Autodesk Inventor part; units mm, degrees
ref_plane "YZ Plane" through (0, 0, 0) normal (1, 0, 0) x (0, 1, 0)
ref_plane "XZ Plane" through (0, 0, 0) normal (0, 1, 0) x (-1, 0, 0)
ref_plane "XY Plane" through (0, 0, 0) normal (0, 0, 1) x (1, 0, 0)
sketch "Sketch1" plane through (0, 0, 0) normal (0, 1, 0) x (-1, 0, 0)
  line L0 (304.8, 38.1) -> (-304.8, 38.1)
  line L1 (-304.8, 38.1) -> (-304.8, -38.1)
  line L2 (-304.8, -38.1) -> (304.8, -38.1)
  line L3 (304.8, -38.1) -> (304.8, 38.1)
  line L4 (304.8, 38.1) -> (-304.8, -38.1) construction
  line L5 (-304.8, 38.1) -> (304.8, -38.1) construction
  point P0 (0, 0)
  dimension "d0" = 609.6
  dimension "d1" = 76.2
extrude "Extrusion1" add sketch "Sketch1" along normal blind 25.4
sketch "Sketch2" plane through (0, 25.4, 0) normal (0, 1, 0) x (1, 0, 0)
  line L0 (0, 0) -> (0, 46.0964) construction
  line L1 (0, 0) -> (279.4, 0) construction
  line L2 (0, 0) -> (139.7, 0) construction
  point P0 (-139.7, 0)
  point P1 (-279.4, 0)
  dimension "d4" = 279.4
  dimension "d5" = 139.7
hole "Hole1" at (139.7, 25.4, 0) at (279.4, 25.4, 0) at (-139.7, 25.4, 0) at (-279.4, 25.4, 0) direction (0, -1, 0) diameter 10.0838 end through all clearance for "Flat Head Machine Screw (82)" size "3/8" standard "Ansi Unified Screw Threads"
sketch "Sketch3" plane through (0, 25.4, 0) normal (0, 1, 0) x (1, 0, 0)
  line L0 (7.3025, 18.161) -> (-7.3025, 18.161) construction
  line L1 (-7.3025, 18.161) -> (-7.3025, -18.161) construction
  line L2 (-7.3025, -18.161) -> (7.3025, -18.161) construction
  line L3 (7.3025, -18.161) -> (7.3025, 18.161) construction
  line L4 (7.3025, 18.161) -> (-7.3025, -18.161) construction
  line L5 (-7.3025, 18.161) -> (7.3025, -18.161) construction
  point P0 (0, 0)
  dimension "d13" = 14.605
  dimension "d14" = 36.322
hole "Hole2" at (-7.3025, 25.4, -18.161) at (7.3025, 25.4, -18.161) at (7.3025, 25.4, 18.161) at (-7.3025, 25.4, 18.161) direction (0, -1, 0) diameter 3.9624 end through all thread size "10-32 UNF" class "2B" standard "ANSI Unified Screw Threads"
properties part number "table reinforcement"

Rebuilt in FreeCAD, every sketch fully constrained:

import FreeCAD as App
import Part
import Sketcher

V = App.Vector
Q = App.Units.Quantity


def add_polygon(sketch, points):
    """Adds a closed chain of lines whose ends are joined by coincident constraints."""
    first, n = sketch.GeometryCount, len(points)
    for a, b in zip(points, points[1:] + points[:1]):
        sketch.addGeometry(Part.LineSegment(App.Vector(*a, 0), App.Vector(*b, 0)), False)
    for i in range(n):
        sketch.addConstraint(Sketcher.Constraint("Coincident", first + i, 2, first + (i + 1) % n, 1))

doc = App.newDocument("Part")
body = doc.addObject("PartDesign::Body", "Body")

# Sketch on XZ plane
sketch1 = body.newObject("Sketcher::SketchObject", "Sketch")
sketch1.AttachmentSupport = (doc.getObject("XZ_Plane"), [""])
sketch1.MapMode = "FlatFace"
add_polygon(sketch1, [(-305, -38), (-305, 38), (305, 38), (305, -38)])  # lines 0-3
sketch1.addConstraint([
    Sketcher.Constraint("Vertical", 0),
    Sketcher.Constraint("Horizontal", 1),
    Sketcher.Constraint("Vertical", 2),
    Sketcher.Constraint("Horizontal", 3),
    Sketcher.Constraint("Symmetric", 0, 2, 2, 2, -1, 1),
    Sketcher.Constraint("DistanceX", 1, 1, 1, 2, Q("24 in")),
    Sketcher.Constraint("DistanceY", 0, 1, 0, 2, Q("3 in")),
])
pad1 = body.newObject("PartDesign::Pad", "Pad")
pad1.Profile = sketch1
pad1.Length = Q("1 in")
pad1.Reversed = True

# Sketch on XZ plane
sketch2 = body.newObject("Sketcher::SketchObject", "Sketch001")
sketch2.AttachmentSupport = (doc.getObject("XZ_Plane"), [""])
sketch2.MapMode = "FlatFace"
sketch2.AttachmentOffset = App.Placement(V(0, 0, -1 * 25.4), App.Rotation())
sketch2.addGeometry([
    Part.Circle(V(140, 0, 0), V(0, 0, 1), 5),
    Part.Circle(V(279, 0, 0), V(0, 0, 1), 5),
    Part.Circle(V(-140, 0, 0), V(0, 0, 1), 5),
    Part.Circle(V(-279, 0, 0), V(0, 0, 1), 5),
], False)
sketch2.addConstraint([
    Sketcher.Constraint("Equal", 0, 1),
    Sketcher.Constraint("Equal", 1, 2),
    Sketcher.Constraint("Equal", 2, 3),
    Sketcher.Constraint("Symmetric", 0, 3, 2, 3, -1, 1),
    Sketcher.Constraint("Symmetric", 1, 3, 3, 3, -1, 1),
    Sketcher.Constraint("PointOnObject", 0, 3, -1),
    Sketcher.Constraint("PointOnObject", 1, 3, -1),
    Sketcher.Constraint("Diameter", 0, Q("0.397 in")),
    Sketcher.Constraint("DistanceX", -1, 1, 1, 3, Q("11 in")),
    Sketcher.Constraint("DistanceX", 2, 3, 0, 3, Q("11 in")),
])
doc.recompute()
hole = body.newObject("PartDesign::Hole", "Hole")
hole.Profile = sketch2
hole.ThreadType = "None"
hole.Diameter = Q("0.397 in")
hole.DepthType = "ThroughAll"
hole.Reversed = True

# Sketch on XZ plane
sketch3 = body.newObject("Sketcher::SketchObject", "Sketch002")
sketch3.AttachmentSupport = (doc.getObject("XZ_Plane"), [""])
sketch3.MapMode = "FlatFace"
sketch3.AttachmentOffset = App.Placement(V(0, 0, -1 * 25.4), App.Rotation())
sketch3.addGeometry([
    Part.Circle(V(-7.3, -18.2, 0), V(0, 0, 1), 2),
    Part.Circle(V(7.3, -18.2, 0), V(0, 0, 1), 2),
    Part.Circle(V(7.3, 18.2, 0), V(0, 0, 1), 2),
    Part.Circle(V(-7.3, 18.2, 0), V(0, 0, 1), 2),
], False)
sketch3.addConstraint([
    Sketcher.Constraint("Equal", 0, 1),
    Sketcher.Constraint("Equal", 1, 2),
    Sketcher.Constraint("Equal", 2, 3),
    Sketcher.Constraint("Symmetric", 0, 3, 2, 3, -1, 1),
    Sketcher.Constraint("Symmetric", 1, 3, 3, 3, -1, 1),
    Sketcher.Constraint("Symmetric", 0, 3, 1, 3, -2),
    Sketcher.Constraint("Diameter", 0, Q("0.156 in")),
    Sketcher.Constraint("DistanceY", 1, 3, 2, 3, Q("1.43 in")),
    Sketcher.Constraint("DistanceX", 0, 3, 1, 3, Q("0.575 in")),
])
doc.recompute()
hole2 = body.newObject("PartDesign::Hole", "Hole001")
hole2.Profile = sketch3
hole2.ThreadType = "None"
hole2.Diameter = Q("0.156 in")
hole2.DepthType = "ThroughAll"
hole2.Reversed = True

doc.recompute()
